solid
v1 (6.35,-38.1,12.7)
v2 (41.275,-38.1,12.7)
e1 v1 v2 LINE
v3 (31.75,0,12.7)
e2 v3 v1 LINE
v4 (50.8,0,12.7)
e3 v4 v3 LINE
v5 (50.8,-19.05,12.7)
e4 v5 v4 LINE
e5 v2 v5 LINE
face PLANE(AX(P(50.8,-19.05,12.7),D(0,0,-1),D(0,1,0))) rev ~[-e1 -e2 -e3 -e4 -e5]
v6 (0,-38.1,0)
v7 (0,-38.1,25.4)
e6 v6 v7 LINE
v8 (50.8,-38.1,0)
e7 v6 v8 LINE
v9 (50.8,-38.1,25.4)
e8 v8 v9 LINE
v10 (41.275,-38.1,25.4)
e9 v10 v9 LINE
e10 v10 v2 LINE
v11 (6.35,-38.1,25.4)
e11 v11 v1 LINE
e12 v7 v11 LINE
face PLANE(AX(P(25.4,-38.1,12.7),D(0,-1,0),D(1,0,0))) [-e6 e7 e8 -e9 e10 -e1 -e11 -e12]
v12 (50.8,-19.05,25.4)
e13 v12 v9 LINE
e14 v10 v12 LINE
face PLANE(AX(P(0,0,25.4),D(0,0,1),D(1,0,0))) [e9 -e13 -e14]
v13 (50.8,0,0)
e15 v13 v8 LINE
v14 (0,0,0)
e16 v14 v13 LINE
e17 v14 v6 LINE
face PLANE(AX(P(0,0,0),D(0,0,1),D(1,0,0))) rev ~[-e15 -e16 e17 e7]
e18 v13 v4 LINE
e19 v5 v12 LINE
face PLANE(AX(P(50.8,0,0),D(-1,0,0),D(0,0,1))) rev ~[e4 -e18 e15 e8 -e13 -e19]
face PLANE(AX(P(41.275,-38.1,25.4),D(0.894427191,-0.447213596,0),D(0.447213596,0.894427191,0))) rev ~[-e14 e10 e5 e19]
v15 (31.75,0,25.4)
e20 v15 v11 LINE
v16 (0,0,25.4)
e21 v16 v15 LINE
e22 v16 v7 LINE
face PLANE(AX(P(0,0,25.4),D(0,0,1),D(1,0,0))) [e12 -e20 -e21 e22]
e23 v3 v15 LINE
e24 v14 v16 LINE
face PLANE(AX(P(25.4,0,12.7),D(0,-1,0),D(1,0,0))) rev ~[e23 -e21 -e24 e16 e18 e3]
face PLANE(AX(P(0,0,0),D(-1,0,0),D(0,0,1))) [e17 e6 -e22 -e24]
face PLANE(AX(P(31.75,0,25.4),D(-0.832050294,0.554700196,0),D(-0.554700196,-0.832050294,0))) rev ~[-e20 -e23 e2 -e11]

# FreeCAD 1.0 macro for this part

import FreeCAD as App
import Part
import Sketcher
Q = App.Units.Quantity

doc = App.newDocument("Part")
body = doc.addObject("PartDesign::Body", "Body")

# Sketch on XZ plane
sketch1 = doc.addObject("Sketcher::SketchObject", "Sketch")
body.addObject(sketch1)
sketch1.AttachmentSupport = (doc.XZ_Plane, [""])
sketch1.MapMode = "FlatFace"
sketch1.addGeometry([
    Part.LineSegment(App.Vector(0, 25.4, 0), App.Vector(0, 0, 0)),
    Part.LineSegment(App.Vector(0, 0, 0), App.Vector(50.8, 0, 0)),
    Part.LineSegment(App.Vector(50.8, 0, 0), App.Vector(50.8, 25.4, 0)),
    Part.LineSegment(App.Vector(50.8, 25.4, 0), App.Vector(0, 25.4, 0)),
], False)
sketch1.addConstraint([
    Sketcher.Constraint("Coincident", 0, 2, 1, 1),
    Sketcher.Constraint("Coincident", 1, 2, 2, 1),
    Sketcher.Constraint("Coincident", 2, 2, 3, 1),
    Sketcher.Constraint("Coincident", 3, 2, 0, 1),
    Sketcher.Constraint("Vertical", 0),
    Sketcher.Constraint("Horizontal", 1),
    Sketcher.Constraint("Vertical", 2),
    Sketcher.Constraint("Horizontal", 3),
    Sketcher.Constraint("Coincident", 0, 2, -1, 1),
    Sketcher.Constraint("DistanceX", 1, 1, 1, 2, Q("2 in")),
    Sketcher.Constraint("DistanceY", 0, 2, 0, 1, Q("1 in")),
])
pad1 = doc.addObject("PartDesign::Pad", "Pad")
body.addObject(pad1)
pad1.Profile = sketch1
pad1.Length = Q("1.5 in")

# Sketch on YZ plane
sketch2 = doc.addObject("Sketcher::SketchObject", "Sketch001")
body.addObject(sketch2)
sketch2.AttachmentSupport = (doc.YZ_Plane, [""])
sketch2.MapMode = "FlatFace"
sketch2.AttachmentOffset = App.Placement(App.Vector(0, 0, 2 * 25.4), App.Rotation())
sketch2.addGeometry([
    Part.LineSegment(App.Vector(-19.05, 25.4, 0), App.Vector(-19.05, 12.7, 0)),
    Part.LineSegment(App.Vector(-19.05, 12.7, 0), App.Vector(0, 12.7, 0)),
    Part.LineSegment(App.Vector(0, 12.7, 0), App.Vector(0, 25.4, 0)),
    Part.LineSegment(App.Vector(0, 25.4, 0), App.Vector(-19.05, 25.4, 0)),
], False)
sketch2.addConstraint([
    Sketcher.Constraint("Coincident", 0, 2, 1, 1),
    Sketcher.Constraint("Coincident", 1, 2, 2, 1),
    Sketcher.Constraint("Coincident", 2, 2, 3, 1),
    Sketcher.Constraint("Coincident", 3, 2, 0, 1),
    Sketcher.Constraint("Vertical", 0),
    Sketcher.Constraint("Horizontal", 1),
    Sketcher.Constraint("Vertical", 2),
    Sketcher.Constraint("Horizontal", 3),
    Sketcher.Constraint("PointOnObject", 1, 2, -2),
    Sketcher.Constraint("DistanceY", 0, 2, 0, 1, Q("0.5 in")),
    Sketcher.Constraint("DistanceY", -1, 1, 2, 2, Q("1 in")),
    Sketcher.Constraint("DistanceX", 1, 1, 1, 2, Q("0.75 in")),
])
pocket1 = doc.addObject("PartDesign::Pocket", "Pocket")
body.addObject(pocket1)
pocket1.Profile = sketch2
pocket1.Length = Q("0.75 in")

# Sketch on XY plane
sketch3 = doc.addObject("Sketcher::SketchObject", "Sketch002")
body.addObject(sketch3)
sketch3.AttachmentSupport = (doc.XY_Plane, [""])
sketch3.MapMode = "FlatFace"
sketch3.AttachmentOffset = App.Placement(App.Vector(0, 0, 1 * 25.4), App.Rotation())
sketch3.addGeometry([
    Part.LineSegment(App.Vector(41.275, -38.1, 0), App.Vector(50.8, -19.05, 0)),  # 0
    Part.LineSegment(App.Vector(50.8, -19.05, 0), App.Vector(31.75, -19.05, 0)),  # 1
    Part.LineSegment(App.Vector(31.75, -19.05, 0), App.Vector(31.75, 0, 0)),  # 2
    Part.LineSegment(App.Vector(31.75, 0, 0), App.Vector(6.35, -38.1, 0)),  # 3
    Part.LineSegment(App.Vector(6.35, -38.1, 0), App.Vector(41.275, -38.1, 0)),  # 4
], False)
sketch3.addConstraint([
    Sketcher.Constraint("Coincident", 0, 2, 1, 1),
    Sketcher.Constraint("Coincident", 1, 2, 2, 1),
    Sketcher.Constraint("Coincident", 2, 2, 3, 1),
    Sketcher.Constraint("Coincident", 3, 2, 4, 1),
    Sketcher.Constraint("Coincident", 4, 2, 0, 1),
    Sketcher.Constraint("Horizontal", 1),
    Sketcher.Constraint("Vertical", 2),
    Sketcher.Constraint("Horizontal", 4),
    Sketcher.Constraint("PointOnObject", 2, 2, -1),
    Sketcher.Constraint("Equal", 1, 2),
    Sketcher.Constraint("DistanceX", -1, 1, 0, 2, Q("2 in")),
    Sketcher.Constraint("DistanceX", 3, 2, 1, 2, Q("1 in")),
    Sketcher.Constraint("DistanceX", 1, 2, 1, 1, Q("0.75 in")),
    Sketcher.Constraint("DistanceY", 3, 2, -1, 1, Q("1.5 in")),
    Sketcher.Constraint("DistanceX", 4, 1, 4, 2, Q("1.375 in")),
])
pocket2 = doc.addObject("PartDesign::Pocket", "Pocket001")
body.addObject(pocket2)
pocket2.Profile = sketch3
pocket2.Length = Q("0.5 in")

doc.recompute()
